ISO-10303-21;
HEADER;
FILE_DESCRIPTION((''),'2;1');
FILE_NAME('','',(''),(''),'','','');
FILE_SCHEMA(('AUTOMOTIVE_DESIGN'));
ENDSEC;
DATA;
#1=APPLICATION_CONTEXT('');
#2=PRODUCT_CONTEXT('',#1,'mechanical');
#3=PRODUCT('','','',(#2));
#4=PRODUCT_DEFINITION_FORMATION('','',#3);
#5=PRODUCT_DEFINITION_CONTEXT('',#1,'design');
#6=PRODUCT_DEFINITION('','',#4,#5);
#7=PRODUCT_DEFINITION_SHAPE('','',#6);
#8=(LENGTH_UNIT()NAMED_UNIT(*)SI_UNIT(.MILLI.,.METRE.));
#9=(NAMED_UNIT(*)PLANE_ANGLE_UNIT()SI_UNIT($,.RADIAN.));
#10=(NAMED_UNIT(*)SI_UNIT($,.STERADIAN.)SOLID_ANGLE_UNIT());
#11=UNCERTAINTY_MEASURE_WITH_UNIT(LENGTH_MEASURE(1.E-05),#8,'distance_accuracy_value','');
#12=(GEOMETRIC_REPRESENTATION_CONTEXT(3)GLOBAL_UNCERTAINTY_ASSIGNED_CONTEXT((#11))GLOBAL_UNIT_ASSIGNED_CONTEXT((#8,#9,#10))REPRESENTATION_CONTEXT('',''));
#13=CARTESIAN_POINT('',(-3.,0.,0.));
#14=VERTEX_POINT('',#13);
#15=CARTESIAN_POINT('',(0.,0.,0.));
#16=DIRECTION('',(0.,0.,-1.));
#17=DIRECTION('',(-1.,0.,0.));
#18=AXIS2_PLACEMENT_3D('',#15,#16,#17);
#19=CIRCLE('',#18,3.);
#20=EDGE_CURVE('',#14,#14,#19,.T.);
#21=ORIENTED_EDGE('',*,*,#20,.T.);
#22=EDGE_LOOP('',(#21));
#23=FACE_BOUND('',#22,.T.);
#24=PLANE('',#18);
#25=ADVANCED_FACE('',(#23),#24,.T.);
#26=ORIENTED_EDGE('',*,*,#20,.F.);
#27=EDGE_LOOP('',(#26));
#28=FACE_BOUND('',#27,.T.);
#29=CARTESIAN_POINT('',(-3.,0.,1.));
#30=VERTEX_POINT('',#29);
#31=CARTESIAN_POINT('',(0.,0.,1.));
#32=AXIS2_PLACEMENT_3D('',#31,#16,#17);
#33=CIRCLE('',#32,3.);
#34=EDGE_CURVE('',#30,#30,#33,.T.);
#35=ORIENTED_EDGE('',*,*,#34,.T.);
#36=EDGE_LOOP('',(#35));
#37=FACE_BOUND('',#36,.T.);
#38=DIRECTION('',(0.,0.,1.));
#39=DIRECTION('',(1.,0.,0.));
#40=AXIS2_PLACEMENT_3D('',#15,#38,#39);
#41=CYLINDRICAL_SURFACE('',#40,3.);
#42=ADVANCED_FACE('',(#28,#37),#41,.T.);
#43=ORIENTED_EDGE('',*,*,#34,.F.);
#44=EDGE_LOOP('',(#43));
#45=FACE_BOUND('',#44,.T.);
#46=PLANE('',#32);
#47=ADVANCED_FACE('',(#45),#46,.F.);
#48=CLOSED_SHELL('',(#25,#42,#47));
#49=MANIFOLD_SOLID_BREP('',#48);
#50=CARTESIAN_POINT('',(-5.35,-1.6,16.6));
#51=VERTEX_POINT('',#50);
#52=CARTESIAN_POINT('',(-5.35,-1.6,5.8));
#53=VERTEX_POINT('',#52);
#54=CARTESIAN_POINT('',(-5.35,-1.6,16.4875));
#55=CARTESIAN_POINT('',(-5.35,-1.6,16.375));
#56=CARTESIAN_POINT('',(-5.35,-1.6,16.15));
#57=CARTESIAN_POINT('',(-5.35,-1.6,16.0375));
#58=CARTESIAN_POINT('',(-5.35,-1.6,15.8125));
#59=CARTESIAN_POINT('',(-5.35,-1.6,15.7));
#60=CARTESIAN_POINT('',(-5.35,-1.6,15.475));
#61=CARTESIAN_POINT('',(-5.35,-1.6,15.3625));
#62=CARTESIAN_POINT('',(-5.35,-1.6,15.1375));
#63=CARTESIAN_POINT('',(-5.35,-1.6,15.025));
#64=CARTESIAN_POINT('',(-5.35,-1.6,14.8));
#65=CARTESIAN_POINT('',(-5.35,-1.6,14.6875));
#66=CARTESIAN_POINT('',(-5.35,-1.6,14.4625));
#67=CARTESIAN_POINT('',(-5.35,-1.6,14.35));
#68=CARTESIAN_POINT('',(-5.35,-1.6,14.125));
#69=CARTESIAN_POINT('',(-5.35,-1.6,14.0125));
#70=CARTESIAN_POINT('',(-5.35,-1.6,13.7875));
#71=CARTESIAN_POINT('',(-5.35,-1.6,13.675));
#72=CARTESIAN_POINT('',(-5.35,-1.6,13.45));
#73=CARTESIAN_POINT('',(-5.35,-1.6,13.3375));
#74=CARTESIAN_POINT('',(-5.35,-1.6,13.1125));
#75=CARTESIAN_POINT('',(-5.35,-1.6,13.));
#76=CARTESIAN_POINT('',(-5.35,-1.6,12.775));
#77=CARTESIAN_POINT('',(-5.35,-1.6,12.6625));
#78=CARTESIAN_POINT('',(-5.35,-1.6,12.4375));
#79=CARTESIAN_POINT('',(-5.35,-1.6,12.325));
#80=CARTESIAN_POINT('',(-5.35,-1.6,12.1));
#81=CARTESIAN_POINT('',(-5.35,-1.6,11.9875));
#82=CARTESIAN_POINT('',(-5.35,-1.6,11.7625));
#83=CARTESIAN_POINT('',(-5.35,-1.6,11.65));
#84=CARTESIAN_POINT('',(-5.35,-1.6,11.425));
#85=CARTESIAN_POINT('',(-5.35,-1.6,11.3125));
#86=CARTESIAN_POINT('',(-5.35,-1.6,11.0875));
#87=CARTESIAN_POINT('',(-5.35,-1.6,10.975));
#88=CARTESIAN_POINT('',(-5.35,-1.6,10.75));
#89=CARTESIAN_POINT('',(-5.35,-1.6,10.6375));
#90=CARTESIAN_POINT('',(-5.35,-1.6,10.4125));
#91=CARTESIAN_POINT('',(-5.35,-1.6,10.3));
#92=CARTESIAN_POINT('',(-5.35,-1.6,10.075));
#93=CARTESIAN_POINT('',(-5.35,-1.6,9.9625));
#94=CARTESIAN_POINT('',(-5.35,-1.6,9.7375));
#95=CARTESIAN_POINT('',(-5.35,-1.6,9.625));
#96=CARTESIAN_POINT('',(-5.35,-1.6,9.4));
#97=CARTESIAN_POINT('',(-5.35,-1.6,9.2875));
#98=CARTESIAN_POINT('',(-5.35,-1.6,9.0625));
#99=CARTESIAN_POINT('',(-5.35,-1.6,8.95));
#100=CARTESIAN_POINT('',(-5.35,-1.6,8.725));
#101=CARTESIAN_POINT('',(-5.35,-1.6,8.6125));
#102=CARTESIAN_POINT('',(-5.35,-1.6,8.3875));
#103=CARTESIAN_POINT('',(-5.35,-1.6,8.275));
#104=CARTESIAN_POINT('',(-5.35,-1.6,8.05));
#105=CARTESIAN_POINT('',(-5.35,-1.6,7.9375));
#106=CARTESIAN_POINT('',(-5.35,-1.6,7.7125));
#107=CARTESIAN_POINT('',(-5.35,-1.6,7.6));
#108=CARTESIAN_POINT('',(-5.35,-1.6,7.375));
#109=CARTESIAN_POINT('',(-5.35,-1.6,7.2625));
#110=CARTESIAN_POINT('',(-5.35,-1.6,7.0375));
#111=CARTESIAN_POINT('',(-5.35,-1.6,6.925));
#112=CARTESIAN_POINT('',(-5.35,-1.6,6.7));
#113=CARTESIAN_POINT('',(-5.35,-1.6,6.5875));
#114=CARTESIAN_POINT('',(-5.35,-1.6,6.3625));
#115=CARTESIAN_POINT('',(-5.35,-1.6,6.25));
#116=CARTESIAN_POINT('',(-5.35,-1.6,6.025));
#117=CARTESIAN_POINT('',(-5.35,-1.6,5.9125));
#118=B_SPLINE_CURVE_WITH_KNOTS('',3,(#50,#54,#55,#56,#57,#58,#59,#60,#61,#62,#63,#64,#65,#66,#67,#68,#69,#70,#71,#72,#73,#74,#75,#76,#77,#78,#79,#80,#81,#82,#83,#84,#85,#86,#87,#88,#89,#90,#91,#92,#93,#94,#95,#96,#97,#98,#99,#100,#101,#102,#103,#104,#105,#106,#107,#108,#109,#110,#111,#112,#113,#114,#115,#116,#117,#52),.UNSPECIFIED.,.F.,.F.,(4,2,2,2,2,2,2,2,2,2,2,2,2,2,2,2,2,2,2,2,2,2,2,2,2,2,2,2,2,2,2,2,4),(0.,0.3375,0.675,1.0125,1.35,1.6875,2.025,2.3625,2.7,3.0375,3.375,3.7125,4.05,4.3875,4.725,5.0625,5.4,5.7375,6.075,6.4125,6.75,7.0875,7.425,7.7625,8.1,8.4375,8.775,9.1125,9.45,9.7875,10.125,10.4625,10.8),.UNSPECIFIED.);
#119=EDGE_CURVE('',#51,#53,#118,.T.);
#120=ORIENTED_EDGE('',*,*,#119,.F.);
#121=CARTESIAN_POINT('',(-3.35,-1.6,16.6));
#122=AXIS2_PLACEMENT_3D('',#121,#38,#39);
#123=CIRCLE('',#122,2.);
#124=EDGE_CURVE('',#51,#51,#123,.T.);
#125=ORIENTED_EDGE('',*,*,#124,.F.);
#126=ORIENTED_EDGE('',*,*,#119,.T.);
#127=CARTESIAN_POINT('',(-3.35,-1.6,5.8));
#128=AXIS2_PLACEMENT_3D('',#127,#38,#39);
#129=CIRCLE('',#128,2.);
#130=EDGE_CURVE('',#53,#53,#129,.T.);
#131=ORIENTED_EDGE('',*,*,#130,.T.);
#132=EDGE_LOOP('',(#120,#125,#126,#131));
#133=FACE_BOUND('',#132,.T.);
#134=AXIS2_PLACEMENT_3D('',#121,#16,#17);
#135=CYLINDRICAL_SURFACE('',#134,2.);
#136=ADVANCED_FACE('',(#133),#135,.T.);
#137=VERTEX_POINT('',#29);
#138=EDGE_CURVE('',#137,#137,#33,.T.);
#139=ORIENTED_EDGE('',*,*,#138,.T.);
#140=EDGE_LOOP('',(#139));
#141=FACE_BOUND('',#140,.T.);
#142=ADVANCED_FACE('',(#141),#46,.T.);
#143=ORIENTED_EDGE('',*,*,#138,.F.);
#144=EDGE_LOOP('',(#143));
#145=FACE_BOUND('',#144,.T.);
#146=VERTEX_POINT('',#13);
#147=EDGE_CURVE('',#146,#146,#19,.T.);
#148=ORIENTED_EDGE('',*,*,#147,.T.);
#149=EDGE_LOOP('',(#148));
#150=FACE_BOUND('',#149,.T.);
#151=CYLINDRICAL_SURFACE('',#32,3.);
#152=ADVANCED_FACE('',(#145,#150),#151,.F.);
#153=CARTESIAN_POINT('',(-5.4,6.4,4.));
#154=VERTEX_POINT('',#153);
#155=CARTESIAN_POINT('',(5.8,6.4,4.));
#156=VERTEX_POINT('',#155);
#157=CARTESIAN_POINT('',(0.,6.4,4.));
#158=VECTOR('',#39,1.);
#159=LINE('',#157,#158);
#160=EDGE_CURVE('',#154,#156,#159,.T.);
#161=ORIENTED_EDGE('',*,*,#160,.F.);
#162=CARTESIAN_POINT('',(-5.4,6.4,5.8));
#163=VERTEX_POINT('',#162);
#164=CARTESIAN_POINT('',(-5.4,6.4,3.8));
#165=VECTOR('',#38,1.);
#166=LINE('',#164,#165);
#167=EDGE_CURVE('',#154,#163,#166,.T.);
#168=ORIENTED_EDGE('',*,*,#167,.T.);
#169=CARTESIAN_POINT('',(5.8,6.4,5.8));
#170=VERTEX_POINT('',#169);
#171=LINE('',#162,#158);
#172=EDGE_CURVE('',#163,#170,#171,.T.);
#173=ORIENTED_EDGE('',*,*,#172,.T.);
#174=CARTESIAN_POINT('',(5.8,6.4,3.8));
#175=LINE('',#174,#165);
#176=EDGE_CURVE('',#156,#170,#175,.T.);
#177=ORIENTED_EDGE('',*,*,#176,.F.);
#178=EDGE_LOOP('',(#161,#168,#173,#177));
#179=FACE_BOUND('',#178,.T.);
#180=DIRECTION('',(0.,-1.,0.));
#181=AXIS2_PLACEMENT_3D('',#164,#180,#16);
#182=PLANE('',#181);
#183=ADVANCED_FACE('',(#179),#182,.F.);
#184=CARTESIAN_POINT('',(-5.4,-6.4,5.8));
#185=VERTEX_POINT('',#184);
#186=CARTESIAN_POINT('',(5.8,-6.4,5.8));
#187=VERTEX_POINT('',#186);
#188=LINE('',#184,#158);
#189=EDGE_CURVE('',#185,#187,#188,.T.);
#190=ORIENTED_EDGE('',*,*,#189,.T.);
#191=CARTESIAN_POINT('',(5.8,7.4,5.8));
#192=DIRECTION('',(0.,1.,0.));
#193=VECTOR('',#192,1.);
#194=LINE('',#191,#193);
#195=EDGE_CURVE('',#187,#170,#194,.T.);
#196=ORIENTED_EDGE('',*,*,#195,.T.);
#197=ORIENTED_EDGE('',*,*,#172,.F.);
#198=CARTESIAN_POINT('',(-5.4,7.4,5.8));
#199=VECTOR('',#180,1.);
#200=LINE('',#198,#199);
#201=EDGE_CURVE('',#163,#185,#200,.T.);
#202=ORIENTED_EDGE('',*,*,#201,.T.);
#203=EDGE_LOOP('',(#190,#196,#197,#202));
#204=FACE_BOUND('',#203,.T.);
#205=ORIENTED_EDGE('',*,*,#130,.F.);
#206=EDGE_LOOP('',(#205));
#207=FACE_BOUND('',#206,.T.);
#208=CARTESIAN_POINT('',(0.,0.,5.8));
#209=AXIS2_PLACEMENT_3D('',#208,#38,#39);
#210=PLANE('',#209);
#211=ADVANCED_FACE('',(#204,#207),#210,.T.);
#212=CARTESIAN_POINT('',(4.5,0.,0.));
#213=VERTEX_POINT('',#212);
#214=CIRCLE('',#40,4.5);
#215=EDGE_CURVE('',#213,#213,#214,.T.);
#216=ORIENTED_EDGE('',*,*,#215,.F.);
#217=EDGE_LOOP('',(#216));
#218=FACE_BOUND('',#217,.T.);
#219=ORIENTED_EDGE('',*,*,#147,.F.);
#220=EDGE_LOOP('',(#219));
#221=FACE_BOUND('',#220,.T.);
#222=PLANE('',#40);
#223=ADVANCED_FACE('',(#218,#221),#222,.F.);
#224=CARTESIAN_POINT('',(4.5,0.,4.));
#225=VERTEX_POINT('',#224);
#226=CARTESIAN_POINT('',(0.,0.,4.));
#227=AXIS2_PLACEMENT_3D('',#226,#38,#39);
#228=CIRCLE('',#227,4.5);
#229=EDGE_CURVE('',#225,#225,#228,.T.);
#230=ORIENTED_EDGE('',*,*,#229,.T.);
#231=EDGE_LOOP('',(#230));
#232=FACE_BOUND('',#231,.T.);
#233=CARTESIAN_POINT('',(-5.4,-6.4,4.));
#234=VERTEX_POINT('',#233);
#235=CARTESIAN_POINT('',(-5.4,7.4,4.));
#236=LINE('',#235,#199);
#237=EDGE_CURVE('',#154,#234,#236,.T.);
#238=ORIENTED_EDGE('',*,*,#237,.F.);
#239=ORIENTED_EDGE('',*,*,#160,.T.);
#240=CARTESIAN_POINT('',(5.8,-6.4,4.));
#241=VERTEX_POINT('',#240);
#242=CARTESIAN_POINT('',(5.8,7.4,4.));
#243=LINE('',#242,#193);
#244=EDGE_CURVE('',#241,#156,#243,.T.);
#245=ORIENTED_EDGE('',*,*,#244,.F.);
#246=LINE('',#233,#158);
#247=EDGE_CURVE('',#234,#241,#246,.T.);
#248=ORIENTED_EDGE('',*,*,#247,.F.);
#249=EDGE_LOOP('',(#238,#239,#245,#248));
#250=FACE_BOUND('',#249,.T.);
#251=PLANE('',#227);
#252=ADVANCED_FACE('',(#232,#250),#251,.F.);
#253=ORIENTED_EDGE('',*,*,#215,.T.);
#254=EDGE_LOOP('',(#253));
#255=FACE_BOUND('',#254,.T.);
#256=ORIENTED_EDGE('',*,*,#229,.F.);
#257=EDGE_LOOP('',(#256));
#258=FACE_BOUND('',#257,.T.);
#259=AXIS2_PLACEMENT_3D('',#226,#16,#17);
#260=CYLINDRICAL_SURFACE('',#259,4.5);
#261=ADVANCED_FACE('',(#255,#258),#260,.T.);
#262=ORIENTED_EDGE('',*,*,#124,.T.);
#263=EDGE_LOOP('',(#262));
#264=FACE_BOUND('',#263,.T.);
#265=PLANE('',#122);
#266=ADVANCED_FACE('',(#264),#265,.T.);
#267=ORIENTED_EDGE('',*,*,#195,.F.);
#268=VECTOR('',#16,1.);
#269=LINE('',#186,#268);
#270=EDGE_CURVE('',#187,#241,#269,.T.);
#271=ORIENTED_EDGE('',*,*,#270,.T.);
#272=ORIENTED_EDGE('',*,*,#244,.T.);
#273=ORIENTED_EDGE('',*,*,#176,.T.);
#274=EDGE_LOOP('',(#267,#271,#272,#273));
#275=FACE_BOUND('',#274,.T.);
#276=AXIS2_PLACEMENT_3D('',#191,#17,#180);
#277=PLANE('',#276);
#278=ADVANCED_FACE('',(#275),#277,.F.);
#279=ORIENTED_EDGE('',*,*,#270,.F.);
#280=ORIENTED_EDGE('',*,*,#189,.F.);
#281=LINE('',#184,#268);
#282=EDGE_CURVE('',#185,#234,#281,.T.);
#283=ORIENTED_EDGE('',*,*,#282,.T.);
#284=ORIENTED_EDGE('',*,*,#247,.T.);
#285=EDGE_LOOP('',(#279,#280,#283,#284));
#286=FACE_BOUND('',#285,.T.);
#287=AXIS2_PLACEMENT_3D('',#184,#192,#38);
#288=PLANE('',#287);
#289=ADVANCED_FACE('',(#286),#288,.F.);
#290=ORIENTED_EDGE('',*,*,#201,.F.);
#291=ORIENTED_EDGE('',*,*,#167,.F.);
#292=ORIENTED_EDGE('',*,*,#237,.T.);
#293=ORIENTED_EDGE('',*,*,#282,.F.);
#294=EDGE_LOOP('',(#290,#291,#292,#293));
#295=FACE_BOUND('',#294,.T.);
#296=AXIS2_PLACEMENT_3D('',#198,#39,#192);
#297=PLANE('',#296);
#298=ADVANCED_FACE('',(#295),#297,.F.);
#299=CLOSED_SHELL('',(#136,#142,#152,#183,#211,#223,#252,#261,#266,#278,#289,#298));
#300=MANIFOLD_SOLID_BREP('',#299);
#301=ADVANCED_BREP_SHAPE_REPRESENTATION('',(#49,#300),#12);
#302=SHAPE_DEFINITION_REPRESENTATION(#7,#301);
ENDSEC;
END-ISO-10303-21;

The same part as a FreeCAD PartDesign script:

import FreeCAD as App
import Part
import Sketcher

V = App.Vector


def add_polygon(sketch, points):
    """Adds a closed chain of lines whose ends are joined by coincident constraints."""
    first, n = sketch.GeometryCount, len(points)
    for a, b in zip(points, points[1:] + points[:1]):
        sketch.addGeometry(Part.LineSegment(App.Vector(*a, 0), App.Vector(*b, 0)), False)
    for i in range(n):
        sketch.addConstraint(Sketcher.Constraint("Coincident", first + i, 2, first + (i + 1) % n, 1))

doc = App.newDocument("Part")
params = doc.addObject("Spreadsheet::Sheet", "Params")
for row, (alias, value) in enumerate([
    ("sketch1_diameter", "9 mm"),
    ("pad1_length", "4 mm"),
    ("sketch2_width", "11.2 mm"),
    ("sketch2_height", "13.8 mm"),
    ("pad2_length", "1.8 mm"),
    ("sketch3_diameter", "6 mm"),
    ("pocket1_length", "1 mm"),
    ("sketch4_diameter", "4 mm"),
    ("pad3_length", "10.8 mm"),
    ("sketch5_height", "1 mm"),
    ("sketch5_width", "11.2 mm"),
    ("pocket2_length", "2 mm"),
    ("sketch6_diameter", "6 mm"),
    ("pad4_length", "1 mm"),
], start=1):
    params.set(f"A{row}", alias)
    params.set(f"B{row}", "=" + value)
    params.setAlias(f"B{row}", alias)

body = doc.addObject("PartDesign::Body", "Body")

sketch1 = body.newObject("Sketcher::SketchObject", "Sketch")
sketch1.AttachmentSupport = (doc.getObject("XY_Plane"), [""])
sketch1.MapMode = "FlatFace"
sketch1.addGeometry(Part.Circle(V(0, 0, 0), V(0, 0, 1), 4.5), False)
sketch1.addConstraint(Sketcher.Constraint("Coincident", 0, 3, -1, 1))
sketch1.addConstraint(Sketcher.Constraint("Diameter", 0, 9.0))
sketch1.setExpression("Constraints[1]", "Params.sketch1_diameter")
pad1 = body.newObject("PartDesign::Pad", "Pad")
pad1.Profile = sketch1
pad1.setExpression("Length", "Params.pad1_length")

sketch2 = body.newObject("Sketcher::SketchObject", "Sketch001")
sketch2.AttachmentSupport = (doc.getObject("XY_Plane"), [""])
sketch2.MapMode = "FlatFace"
sketch2.AttachmentOffset = App.Placement(V(0, 0, 4), App.Rotation())
add_polygon(sketch2, [(-5, 7), (-5, -6), (6, -6), (6, 7)])
sketch2.addConstraint(Sketcher.Constraint("Vertical", 0))
sketch2.addConstraint(Sketcher.Constraint("Horizontal", 1))
sketch2.addConstraint(Sketcher.Constraint("Vertical", 2))
sketch2.addConstraint(Sketcher.Constraint("Horizontal", 3))
sketch2.addConstraint(Sketcher.Constraint("DistanceX", 1, 1, 1, 2, 11.2))
sketch2.addConstraint(Sketcher.Constraint("DistanceY", 0, 2, 0, 1, 13.8))
sketch2.addConstraint(Sketcher.Constraint("DistanceX", 0, 2, -1, 1, 5.4))
sketch2.addConstraint(Sketcher.Constraint("DistanceY", 0, 2, -1, 1, 6.4))
sketch2.setExpression("Constraints[8]", "Params.sketch2_width")
sketch2.setExpression("Constraints[9]", "Params.sketch2_height")
pad2 = body.newObject("PartDesign::Pad", "Pad001")
pad2.Profile = sketch2
pad2.setExpression("Length", "Params.pad2_length")

sketch3 = body.newObject("Sketcher::SketchObject", "Sketch002")
sketch3.AttachmentSupport = (doc.getObject("XY_Plane"), [""])
sketch3.MapMode = "FlatFace"
sketch3.addGeometry(Part.Circle(V(0, 0, 0), V(0, 0, 1), 3), False)
sketch3.addConstraint(Sketcher.Constraint("Coincident", 0, 3, -1, 1))
sketch3.addConstraint(Sketcher.Constraint("Diameter", 0, 6.0))
sketch3.setExpression("Constraints[1]", "Params.sketch3_diameter")
pocket1 = body.newObject("PartDesign::Pocket", "Pocket")
pocket1.Profile = sketch3
pocket1.setExpression("Length", "Params.pocket1_length")
pocket1.Reversed = True

sketch4 = body.newObject("Sketcher::SketchObject", "Sketch003")
sketch4.AttachmentSupport = (doc.getObject("XY_Plane"), [""])
sketch4.MapMode = "FlatFace"
sketch4.AttachmentOffset = App.Placement(V(0, 0, 5.8), App.Rotation())
sketch4.addGeometry(Part.Circle(V(-3.4, -1.6, 0), V(0, 0, 1), 2), False)
sketch4.addConstraint(Sketcher.Constraint("Diameter", 0, 4.0))
sketch4.addConstraint(Sketcher.Constraint("DistanceY", 0, 3, -1, 1, 1.6))
sketch4.addConstraint(Sketcher.Constraint("DistanceX", 0, 3, -1, 1, 3.35))
sketch4.setExpression("Constraints[0]", "Params.sketch4_diameter")
pad3 = body.newObject("PartDesign::Pad", "Pad002")
pad3.Profile = sketch4
pad3.setExpression("Length", "Params.pad3_length")

sketch5 = body.newObject("Sketcher::SketchObject", "Sketch004")
sketch5.AttachmentSupport = (doc.getObject("XY_Plane"), [""])
sketch5.MapMode = "FlatFace"
sketch5.AttachmentOffset = App.Placement(V(0, 0, 5.8), App.Rotation())
add_polygon(sketch5, [(-5.4, 7.4), (-5.4, 6.4), (5.8, 6.4), (5.8, 7.4)])
sketch5.addConstraint(Sketcher.Constraint("Vertical", 0))
sketch5.addConstraint(Sketcher.Constraint("Horizontal", 1))
sketch5.addConstraint(Sketcher.Constraint("Vertical", 2))
sketch5.addConstraint(Sketcher.Constraint("Horizontal", 3))
sketch5.addConstraint(Sketcher.Constraint("DistanceY", 0, 2, 0, 1, 1.0))
sketch5.addConstraint(Sketcher.Constraint("DistanceX", 1, 1, 1, 2, 11.2))
sketch5.addConstraint(Sketcher.Constraint("DistanceX", 0, 2, -1, 1, 5.4))
sketch5.addConstraint(Sketcher.Constraint("DistanceY", -1, 1, 0, 2, 6.4))
sketch5.setExpression("Constraints[8]", "Params.sketch5_height")
sketch5.setExpression("Constraints[9]", "Params.sketch5_width")
pocket2 = body.newObject("PartDesign::Pocket", "Pocket001")
pocket2.Profile = sketch5
pocket2.setExpression("Length", "Params.pocket2_length")
body2 = doc.addObject("PartDesign::Body", "Body001")

sketch6 = body2.newObject("Sketcher::SketchObject", "Sketch005")
sketch6.AttachmentSupport = (doc.getObject("XY_Plane001"), [""])
sketch6.MapMode = "FlatFace"
sketch6.AttachmentOffset = App.Placement(V(0, 0, 1), App.Rotation())
sketch6.addGeometry(Part.Circle(V(0, 0, 0), V(0, 0, 1), 3), False)
sketch6.addConstraint(Sketcher.Constraint("Coincident", 0, 3, -1, 1))
sketch6.addConstraint(Sketcher.Constraint("Diameter", 0, 6.0))
sketch6.setExpression("Constraints[1]", "Params.sketch6_diameter")
pad4 = body2.newObject("PartDesign::Pad", "Pad003")
pad4.Profile = sketch6
pad4.setExpression("Length", "Params.pad4_length")
pad4.Reversed = True

doc.recompute()
